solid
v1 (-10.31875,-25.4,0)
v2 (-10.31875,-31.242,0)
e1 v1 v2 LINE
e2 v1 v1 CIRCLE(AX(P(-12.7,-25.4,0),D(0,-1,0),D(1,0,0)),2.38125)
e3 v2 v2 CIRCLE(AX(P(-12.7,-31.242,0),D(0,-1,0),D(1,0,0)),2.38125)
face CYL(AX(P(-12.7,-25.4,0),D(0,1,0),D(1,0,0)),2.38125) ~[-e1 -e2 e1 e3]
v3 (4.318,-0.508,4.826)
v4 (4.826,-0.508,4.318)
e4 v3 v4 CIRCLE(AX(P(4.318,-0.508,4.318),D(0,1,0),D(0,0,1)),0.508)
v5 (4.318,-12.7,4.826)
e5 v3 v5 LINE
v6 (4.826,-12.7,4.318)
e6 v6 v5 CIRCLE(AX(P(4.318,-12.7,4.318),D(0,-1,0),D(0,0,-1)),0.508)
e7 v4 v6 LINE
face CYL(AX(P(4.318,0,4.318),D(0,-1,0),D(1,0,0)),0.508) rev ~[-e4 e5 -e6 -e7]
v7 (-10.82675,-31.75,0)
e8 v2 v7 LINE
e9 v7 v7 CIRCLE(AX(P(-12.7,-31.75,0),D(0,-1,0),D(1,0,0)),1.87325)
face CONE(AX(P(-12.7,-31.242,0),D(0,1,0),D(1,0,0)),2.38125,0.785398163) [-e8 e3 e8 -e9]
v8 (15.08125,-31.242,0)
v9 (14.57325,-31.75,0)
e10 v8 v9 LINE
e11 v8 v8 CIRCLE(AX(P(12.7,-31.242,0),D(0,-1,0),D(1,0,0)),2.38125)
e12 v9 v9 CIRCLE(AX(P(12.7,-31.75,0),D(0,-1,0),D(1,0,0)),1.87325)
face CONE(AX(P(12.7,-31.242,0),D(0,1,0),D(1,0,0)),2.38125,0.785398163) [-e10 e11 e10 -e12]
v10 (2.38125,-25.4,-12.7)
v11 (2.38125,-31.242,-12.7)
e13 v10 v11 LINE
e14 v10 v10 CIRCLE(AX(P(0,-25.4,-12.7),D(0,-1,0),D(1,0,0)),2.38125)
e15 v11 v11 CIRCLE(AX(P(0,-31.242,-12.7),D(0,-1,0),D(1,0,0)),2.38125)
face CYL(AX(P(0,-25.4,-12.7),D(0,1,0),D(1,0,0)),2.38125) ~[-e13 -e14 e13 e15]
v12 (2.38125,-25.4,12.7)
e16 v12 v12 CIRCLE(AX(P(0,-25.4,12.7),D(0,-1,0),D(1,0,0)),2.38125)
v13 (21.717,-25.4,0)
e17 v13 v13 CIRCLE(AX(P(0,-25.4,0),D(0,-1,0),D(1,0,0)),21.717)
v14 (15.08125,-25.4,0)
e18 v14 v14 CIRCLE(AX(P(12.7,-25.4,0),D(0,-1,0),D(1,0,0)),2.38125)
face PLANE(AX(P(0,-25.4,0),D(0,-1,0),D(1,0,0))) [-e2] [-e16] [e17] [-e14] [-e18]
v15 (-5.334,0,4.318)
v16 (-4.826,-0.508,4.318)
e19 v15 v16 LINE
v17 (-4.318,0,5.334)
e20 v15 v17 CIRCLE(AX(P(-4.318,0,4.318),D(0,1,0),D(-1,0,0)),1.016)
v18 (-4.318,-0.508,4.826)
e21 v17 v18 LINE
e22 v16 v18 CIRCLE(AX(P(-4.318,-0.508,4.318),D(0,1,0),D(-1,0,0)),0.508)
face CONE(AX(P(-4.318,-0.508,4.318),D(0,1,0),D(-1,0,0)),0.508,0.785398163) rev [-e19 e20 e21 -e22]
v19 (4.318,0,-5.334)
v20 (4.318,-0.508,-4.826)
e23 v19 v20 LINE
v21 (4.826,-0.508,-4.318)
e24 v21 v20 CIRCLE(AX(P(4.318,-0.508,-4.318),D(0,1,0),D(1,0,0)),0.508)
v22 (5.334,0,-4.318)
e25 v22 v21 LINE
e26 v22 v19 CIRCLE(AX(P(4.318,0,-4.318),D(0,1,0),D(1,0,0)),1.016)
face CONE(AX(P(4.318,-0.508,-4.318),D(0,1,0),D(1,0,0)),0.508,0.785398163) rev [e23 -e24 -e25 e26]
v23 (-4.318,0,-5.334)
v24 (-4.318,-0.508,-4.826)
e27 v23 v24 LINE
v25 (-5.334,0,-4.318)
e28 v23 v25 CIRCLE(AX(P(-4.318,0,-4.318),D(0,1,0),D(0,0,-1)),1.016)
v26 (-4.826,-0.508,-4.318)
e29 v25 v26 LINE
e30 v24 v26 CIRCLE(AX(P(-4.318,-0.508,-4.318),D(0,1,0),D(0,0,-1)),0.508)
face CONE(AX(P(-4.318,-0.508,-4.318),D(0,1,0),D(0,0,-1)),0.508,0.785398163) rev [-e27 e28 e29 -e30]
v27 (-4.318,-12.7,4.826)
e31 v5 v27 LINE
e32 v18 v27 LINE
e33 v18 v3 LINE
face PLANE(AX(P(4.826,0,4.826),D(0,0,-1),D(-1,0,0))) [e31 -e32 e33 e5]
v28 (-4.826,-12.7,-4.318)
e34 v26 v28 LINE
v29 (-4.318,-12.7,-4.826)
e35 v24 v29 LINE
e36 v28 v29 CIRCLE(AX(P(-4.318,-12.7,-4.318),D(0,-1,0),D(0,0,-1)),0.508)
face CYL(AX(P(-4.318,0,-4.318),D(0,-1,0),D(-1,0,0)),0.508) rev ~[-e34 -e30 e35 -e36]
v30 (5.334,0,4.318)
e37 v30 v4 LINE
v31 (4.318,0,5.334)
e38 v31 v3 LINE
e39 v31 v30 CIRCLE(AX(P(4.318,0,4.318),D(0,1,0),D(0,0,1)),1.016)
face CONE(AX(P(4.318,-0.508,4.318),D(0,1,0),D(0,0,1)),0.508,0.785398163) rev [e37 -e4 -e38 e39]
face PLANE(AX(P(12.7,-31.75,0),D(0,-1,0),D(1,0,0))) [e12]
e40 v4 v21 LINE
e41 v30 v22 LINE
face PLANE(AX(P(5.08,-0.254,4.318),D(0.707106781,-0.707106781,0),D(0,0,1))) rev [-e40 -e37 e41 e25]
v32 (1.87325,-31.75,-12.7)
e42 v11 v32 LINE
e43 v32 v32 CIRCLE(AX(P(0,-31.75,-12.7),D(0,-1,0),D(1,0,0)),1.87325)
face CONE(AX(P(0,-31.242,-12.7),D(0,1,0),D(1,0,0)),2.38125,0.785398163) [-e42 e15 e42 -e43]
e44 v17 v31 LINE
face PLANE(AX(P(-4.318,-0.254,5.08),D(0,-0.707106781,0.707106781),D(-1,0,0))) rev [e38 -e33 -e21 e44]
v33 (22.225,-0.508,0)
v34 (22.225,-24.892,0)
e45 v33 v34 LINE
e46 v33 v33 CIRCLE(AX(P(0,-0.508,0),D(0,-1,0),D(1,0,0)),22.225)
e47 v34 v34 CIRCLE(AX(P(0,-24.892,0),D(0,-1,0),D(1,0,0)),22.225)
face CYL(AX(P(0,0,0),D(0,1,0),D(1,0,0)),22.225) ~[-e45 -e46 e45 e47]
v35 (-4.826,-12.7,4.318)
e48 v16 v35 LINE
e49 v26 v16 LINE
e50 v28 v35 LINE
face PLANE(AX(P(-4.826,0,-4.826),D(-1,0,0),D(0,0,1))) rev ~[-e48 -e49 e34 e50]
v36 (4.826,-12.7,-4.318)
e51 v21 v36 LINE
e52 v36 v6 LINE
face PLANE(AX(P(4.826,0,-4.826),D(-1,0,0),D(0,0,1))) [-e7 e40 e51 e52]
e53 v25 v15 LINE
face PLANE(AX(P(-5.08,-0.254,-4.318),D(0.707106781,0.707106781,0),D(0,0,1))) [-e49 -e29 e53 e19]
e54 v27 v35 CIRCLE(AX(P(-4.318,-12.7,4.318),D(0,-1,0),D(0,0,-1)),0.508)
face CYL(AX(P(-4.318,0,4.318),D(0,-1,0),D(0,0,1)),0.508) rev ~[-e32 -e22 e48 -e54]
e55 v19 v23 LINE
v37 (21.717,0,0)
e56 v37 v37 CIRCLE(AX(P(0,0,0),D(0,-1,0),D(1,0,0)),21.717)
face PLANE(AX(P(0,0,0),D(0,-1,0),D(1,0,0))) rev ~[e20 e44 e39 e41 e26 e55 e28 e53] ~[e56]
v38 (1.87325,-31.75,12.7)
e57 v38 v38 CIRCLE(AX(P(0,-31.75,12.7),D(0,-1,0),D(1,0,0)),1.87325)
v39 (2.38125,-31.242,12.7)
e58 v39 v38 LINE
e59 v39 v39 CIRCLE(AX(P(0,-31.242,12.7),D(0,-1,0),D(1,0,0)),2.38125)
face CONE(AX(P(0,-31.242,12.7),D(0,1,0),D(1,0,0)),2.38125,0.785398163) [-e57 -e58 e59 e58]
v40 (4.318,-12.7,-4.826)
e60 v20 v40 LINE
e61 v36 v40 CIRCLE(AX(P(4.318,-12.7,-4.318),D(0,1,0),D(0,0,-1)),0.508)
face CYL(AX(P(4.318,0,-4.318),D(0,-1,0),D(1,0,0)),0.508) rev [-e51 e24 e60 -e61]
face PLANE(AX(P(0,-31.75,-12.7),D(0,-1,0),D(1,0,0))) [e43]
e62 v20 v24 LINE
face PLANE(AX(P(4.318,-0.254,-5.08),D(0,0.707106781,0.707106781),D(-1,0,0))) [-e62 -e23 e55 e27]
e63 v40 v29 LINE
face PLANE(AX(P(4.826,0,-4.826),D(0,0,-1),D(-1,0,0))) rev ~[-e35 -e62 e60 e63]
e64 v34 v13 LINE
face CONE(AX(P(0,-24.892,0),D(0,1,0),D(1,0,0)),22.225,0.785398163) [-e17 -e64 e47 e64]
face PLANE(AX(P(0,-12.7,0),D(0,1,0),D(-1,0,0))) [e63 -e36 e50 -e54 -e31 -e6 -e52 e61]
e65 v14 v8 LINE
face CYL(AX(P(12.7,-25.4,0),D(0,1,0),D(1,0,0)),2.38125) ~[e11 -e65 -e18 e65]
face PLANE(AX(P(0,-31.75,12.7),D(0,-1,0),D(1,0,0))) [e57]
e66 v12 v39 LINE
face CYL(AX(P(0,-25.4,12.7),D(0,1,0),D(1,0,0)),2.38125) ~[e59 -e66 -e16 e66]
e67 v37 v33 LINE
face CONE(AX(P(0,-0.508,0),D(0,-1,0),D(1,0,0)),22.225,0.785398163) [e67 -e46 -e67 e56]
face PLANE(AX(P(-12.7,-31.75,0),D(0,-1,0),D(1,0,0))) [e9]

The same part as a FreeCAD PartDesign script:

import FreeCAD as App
import Part
import Sketcher
from FreeCAD import Vector
Q = App.Units.Quantity


def edges_at(feature, points):
    """Names of the edges that pass closest to the given points."""
    edges = feature.Shape.Edges
    near = lambda p: min(range(len(edges)), key=lambda i: edges[i].distToShape(Part.Vertex(*p))[0])
    return sorted({f"Edge{near(p) + 1}" for p in points})

doc = App.newDocument("Part")
body = doc.addObject("PartDesign::Body", "Body")

# Sketch on XZ plane
sketch1 = body.newObject("Sketcher::SketchObject", "Sketch")
sketch1.AttachmentSupport = (doc.getObject("XZ_Plane"), [""])
sketch1.MapMode = "FlatFace"
sketch1.addGeometry(Part.Circle(Vector(0, 0, 0), Vector(0, 0, 1), 22.225), False)
sketch1.addConstraint([
    Sketcher.Constraint("Coincident", 0, 3, -1, 1),
    Sketcher.Constraint("Diameter", 0, Q("1.75 in")),
])
pad1 = body.newObject("PartDesign::Pad", "Pad")
pad1.Profile = sketch1
pad1.Length = Q("1 in")

# Sketch on XZ plane
sketch2 = body.newObject("Sketcher::SketchObject", "Sketch001")
sketch2.AttachmentSupport = (doc.getObject("XZ_Plane"), [""])
sketch2.MapMode = "FlatFace"
sketch2.AttachmentOffset = App.Placement(Vector(0, 0, 1 * 25.4), App.Rotation())
sketch2.addGeometry([
    Part.Circle(Vector(0, 12.7, 0), Vector(0, 0, 1), 2.38125),
    Part.Circle(Vector(-12.7, 0, 0), Vector(0, 0, 1), 2.38125),
    Part.Circle(Vector(0, -12.7, 0), Vector(0, 0, 1), 2.38125),
    Part.Circle(Vector(12.7, 0, 0), Vector(0, 0, 1), 2.38125),
], False)
sketch2.addConstraint([
    Sketcher.Constraint("Equal", 0, 1),
    Sketcher.Constraint("Equal", 1, 2),
    Sketcher.Constraint("Equal", 2, 3),
    Sketcher.Constraint("Symmetric", 0, 3, 2, 3, -1, 1),
    Sketcher.Constraint("Symmetric", 1, 3, 3, 3, -1, 1),
    Sketcher.Constraint("PointOnObject", 0, 3, -2),
    Sketcher.Constraint("PointOnObject", 1, 3, -1),
    Sketcher.Constraint("Diameter", 0, Q("0.1875 in")),
    Sketcher.Constraint("DistanceY", 2, 3, 0, 3, Q("1 in")),
    Sketcher.Constraint("DistanceX", 1, 3, 3, 3, Q("1 in")),
])
pad2 = body.newObject("PartDesign::Pad", "Pad001")
pad2.Profile = sketch2
pad2.Length = Q("0.25 in")

# Sketch on XZ plane
sketch3 = body.newObject("Sketcher::SketchObject", "Sketch002")
sketch3.AttachmentSupport = (doc.getObject("XZ_Plane"), [""])
sketch3.MapMode = "FlatFace"
sketch3.addGeometry([
    Part.LineSegment(Vector(4.826, 4.826, 0), Vector(4.826, -4.826, 0)),
    Part.LineSegment(Vector(4.826, -4.826, 0), Vector(-4.826, -4.826, 0)),
    Part.LineSegment(Vector(-4.826, -4.826, 0), Vector(-4.826, 4.826, 0)),
    Part.LineSegment(Vector(-4.826, 4.826, 0), Vector(4.826, 4.826, 0)),
], False)
sketch3.addConstraint([
    Sketcher.Constraint("Coincident", 0, 2, 1, 1),
    Sketcher.Constraint("Coincident", 1, 2, 2, 1),
    Sketcher.Constraint("Coincident", 2, 2, 3, 1),
    Sketcher.Constraint("Coincident", 3, 2, 0, 1),
    Sketcher.Constraint("Vertical", 0),
    Sketcher.Constraint("Horizontal", 1),
    Sketcher.Constraint("Vertical", 2),
    Sketcher.Constraint("Horizontal", 3),
    Sketcher.Constraint("Symmetric", 0, 2, 2, 2, -1, 1),
    Sketcher.Constraint("Equal", 3, 0),
    Sketcher.Constraint("DistanceX", 1, 2, 1, 1, Q("0.38 in")),
])
pocket1 = body.newObject("PartDesign::Pocket", "Pocket")
pocket1.Profile = sketch3
pocket1.Length = Q("0.5 in")
pocket1.Reversed = True
doc.recompute()

fillet = body.newObject("PartDesign::Fillet", "Fillet")
fillet.Base = (pocket1, edges_at(pocket1, [
    (-4.826, -6.35, -4.826),
    (-4.826, -6.35, 4.826),
    (4.826, -6.35, 4.826),
    (4.826, -6.35, -4.826),
]))
fillet.Radius = Q("0.02 in")
doc.recompute()

chamfer = body.newObject("PartDesign::Chamfer", "Chamfer")
chamfer.Base = (fillet, edges_at(fillet, [
    (0, 0, -4.826),
    (-22.225, 0, 0),
    (-22.225, -25.4, 0),
    (-15.081, -31.75, 0),
    (-2.381, -31.75, 12.7),
    (10.319, -31.75, 0),
    (-2.381, -31.75, -12.7),
]))
chamfer.Size = Q("0.02 in")

doc.recompute()
